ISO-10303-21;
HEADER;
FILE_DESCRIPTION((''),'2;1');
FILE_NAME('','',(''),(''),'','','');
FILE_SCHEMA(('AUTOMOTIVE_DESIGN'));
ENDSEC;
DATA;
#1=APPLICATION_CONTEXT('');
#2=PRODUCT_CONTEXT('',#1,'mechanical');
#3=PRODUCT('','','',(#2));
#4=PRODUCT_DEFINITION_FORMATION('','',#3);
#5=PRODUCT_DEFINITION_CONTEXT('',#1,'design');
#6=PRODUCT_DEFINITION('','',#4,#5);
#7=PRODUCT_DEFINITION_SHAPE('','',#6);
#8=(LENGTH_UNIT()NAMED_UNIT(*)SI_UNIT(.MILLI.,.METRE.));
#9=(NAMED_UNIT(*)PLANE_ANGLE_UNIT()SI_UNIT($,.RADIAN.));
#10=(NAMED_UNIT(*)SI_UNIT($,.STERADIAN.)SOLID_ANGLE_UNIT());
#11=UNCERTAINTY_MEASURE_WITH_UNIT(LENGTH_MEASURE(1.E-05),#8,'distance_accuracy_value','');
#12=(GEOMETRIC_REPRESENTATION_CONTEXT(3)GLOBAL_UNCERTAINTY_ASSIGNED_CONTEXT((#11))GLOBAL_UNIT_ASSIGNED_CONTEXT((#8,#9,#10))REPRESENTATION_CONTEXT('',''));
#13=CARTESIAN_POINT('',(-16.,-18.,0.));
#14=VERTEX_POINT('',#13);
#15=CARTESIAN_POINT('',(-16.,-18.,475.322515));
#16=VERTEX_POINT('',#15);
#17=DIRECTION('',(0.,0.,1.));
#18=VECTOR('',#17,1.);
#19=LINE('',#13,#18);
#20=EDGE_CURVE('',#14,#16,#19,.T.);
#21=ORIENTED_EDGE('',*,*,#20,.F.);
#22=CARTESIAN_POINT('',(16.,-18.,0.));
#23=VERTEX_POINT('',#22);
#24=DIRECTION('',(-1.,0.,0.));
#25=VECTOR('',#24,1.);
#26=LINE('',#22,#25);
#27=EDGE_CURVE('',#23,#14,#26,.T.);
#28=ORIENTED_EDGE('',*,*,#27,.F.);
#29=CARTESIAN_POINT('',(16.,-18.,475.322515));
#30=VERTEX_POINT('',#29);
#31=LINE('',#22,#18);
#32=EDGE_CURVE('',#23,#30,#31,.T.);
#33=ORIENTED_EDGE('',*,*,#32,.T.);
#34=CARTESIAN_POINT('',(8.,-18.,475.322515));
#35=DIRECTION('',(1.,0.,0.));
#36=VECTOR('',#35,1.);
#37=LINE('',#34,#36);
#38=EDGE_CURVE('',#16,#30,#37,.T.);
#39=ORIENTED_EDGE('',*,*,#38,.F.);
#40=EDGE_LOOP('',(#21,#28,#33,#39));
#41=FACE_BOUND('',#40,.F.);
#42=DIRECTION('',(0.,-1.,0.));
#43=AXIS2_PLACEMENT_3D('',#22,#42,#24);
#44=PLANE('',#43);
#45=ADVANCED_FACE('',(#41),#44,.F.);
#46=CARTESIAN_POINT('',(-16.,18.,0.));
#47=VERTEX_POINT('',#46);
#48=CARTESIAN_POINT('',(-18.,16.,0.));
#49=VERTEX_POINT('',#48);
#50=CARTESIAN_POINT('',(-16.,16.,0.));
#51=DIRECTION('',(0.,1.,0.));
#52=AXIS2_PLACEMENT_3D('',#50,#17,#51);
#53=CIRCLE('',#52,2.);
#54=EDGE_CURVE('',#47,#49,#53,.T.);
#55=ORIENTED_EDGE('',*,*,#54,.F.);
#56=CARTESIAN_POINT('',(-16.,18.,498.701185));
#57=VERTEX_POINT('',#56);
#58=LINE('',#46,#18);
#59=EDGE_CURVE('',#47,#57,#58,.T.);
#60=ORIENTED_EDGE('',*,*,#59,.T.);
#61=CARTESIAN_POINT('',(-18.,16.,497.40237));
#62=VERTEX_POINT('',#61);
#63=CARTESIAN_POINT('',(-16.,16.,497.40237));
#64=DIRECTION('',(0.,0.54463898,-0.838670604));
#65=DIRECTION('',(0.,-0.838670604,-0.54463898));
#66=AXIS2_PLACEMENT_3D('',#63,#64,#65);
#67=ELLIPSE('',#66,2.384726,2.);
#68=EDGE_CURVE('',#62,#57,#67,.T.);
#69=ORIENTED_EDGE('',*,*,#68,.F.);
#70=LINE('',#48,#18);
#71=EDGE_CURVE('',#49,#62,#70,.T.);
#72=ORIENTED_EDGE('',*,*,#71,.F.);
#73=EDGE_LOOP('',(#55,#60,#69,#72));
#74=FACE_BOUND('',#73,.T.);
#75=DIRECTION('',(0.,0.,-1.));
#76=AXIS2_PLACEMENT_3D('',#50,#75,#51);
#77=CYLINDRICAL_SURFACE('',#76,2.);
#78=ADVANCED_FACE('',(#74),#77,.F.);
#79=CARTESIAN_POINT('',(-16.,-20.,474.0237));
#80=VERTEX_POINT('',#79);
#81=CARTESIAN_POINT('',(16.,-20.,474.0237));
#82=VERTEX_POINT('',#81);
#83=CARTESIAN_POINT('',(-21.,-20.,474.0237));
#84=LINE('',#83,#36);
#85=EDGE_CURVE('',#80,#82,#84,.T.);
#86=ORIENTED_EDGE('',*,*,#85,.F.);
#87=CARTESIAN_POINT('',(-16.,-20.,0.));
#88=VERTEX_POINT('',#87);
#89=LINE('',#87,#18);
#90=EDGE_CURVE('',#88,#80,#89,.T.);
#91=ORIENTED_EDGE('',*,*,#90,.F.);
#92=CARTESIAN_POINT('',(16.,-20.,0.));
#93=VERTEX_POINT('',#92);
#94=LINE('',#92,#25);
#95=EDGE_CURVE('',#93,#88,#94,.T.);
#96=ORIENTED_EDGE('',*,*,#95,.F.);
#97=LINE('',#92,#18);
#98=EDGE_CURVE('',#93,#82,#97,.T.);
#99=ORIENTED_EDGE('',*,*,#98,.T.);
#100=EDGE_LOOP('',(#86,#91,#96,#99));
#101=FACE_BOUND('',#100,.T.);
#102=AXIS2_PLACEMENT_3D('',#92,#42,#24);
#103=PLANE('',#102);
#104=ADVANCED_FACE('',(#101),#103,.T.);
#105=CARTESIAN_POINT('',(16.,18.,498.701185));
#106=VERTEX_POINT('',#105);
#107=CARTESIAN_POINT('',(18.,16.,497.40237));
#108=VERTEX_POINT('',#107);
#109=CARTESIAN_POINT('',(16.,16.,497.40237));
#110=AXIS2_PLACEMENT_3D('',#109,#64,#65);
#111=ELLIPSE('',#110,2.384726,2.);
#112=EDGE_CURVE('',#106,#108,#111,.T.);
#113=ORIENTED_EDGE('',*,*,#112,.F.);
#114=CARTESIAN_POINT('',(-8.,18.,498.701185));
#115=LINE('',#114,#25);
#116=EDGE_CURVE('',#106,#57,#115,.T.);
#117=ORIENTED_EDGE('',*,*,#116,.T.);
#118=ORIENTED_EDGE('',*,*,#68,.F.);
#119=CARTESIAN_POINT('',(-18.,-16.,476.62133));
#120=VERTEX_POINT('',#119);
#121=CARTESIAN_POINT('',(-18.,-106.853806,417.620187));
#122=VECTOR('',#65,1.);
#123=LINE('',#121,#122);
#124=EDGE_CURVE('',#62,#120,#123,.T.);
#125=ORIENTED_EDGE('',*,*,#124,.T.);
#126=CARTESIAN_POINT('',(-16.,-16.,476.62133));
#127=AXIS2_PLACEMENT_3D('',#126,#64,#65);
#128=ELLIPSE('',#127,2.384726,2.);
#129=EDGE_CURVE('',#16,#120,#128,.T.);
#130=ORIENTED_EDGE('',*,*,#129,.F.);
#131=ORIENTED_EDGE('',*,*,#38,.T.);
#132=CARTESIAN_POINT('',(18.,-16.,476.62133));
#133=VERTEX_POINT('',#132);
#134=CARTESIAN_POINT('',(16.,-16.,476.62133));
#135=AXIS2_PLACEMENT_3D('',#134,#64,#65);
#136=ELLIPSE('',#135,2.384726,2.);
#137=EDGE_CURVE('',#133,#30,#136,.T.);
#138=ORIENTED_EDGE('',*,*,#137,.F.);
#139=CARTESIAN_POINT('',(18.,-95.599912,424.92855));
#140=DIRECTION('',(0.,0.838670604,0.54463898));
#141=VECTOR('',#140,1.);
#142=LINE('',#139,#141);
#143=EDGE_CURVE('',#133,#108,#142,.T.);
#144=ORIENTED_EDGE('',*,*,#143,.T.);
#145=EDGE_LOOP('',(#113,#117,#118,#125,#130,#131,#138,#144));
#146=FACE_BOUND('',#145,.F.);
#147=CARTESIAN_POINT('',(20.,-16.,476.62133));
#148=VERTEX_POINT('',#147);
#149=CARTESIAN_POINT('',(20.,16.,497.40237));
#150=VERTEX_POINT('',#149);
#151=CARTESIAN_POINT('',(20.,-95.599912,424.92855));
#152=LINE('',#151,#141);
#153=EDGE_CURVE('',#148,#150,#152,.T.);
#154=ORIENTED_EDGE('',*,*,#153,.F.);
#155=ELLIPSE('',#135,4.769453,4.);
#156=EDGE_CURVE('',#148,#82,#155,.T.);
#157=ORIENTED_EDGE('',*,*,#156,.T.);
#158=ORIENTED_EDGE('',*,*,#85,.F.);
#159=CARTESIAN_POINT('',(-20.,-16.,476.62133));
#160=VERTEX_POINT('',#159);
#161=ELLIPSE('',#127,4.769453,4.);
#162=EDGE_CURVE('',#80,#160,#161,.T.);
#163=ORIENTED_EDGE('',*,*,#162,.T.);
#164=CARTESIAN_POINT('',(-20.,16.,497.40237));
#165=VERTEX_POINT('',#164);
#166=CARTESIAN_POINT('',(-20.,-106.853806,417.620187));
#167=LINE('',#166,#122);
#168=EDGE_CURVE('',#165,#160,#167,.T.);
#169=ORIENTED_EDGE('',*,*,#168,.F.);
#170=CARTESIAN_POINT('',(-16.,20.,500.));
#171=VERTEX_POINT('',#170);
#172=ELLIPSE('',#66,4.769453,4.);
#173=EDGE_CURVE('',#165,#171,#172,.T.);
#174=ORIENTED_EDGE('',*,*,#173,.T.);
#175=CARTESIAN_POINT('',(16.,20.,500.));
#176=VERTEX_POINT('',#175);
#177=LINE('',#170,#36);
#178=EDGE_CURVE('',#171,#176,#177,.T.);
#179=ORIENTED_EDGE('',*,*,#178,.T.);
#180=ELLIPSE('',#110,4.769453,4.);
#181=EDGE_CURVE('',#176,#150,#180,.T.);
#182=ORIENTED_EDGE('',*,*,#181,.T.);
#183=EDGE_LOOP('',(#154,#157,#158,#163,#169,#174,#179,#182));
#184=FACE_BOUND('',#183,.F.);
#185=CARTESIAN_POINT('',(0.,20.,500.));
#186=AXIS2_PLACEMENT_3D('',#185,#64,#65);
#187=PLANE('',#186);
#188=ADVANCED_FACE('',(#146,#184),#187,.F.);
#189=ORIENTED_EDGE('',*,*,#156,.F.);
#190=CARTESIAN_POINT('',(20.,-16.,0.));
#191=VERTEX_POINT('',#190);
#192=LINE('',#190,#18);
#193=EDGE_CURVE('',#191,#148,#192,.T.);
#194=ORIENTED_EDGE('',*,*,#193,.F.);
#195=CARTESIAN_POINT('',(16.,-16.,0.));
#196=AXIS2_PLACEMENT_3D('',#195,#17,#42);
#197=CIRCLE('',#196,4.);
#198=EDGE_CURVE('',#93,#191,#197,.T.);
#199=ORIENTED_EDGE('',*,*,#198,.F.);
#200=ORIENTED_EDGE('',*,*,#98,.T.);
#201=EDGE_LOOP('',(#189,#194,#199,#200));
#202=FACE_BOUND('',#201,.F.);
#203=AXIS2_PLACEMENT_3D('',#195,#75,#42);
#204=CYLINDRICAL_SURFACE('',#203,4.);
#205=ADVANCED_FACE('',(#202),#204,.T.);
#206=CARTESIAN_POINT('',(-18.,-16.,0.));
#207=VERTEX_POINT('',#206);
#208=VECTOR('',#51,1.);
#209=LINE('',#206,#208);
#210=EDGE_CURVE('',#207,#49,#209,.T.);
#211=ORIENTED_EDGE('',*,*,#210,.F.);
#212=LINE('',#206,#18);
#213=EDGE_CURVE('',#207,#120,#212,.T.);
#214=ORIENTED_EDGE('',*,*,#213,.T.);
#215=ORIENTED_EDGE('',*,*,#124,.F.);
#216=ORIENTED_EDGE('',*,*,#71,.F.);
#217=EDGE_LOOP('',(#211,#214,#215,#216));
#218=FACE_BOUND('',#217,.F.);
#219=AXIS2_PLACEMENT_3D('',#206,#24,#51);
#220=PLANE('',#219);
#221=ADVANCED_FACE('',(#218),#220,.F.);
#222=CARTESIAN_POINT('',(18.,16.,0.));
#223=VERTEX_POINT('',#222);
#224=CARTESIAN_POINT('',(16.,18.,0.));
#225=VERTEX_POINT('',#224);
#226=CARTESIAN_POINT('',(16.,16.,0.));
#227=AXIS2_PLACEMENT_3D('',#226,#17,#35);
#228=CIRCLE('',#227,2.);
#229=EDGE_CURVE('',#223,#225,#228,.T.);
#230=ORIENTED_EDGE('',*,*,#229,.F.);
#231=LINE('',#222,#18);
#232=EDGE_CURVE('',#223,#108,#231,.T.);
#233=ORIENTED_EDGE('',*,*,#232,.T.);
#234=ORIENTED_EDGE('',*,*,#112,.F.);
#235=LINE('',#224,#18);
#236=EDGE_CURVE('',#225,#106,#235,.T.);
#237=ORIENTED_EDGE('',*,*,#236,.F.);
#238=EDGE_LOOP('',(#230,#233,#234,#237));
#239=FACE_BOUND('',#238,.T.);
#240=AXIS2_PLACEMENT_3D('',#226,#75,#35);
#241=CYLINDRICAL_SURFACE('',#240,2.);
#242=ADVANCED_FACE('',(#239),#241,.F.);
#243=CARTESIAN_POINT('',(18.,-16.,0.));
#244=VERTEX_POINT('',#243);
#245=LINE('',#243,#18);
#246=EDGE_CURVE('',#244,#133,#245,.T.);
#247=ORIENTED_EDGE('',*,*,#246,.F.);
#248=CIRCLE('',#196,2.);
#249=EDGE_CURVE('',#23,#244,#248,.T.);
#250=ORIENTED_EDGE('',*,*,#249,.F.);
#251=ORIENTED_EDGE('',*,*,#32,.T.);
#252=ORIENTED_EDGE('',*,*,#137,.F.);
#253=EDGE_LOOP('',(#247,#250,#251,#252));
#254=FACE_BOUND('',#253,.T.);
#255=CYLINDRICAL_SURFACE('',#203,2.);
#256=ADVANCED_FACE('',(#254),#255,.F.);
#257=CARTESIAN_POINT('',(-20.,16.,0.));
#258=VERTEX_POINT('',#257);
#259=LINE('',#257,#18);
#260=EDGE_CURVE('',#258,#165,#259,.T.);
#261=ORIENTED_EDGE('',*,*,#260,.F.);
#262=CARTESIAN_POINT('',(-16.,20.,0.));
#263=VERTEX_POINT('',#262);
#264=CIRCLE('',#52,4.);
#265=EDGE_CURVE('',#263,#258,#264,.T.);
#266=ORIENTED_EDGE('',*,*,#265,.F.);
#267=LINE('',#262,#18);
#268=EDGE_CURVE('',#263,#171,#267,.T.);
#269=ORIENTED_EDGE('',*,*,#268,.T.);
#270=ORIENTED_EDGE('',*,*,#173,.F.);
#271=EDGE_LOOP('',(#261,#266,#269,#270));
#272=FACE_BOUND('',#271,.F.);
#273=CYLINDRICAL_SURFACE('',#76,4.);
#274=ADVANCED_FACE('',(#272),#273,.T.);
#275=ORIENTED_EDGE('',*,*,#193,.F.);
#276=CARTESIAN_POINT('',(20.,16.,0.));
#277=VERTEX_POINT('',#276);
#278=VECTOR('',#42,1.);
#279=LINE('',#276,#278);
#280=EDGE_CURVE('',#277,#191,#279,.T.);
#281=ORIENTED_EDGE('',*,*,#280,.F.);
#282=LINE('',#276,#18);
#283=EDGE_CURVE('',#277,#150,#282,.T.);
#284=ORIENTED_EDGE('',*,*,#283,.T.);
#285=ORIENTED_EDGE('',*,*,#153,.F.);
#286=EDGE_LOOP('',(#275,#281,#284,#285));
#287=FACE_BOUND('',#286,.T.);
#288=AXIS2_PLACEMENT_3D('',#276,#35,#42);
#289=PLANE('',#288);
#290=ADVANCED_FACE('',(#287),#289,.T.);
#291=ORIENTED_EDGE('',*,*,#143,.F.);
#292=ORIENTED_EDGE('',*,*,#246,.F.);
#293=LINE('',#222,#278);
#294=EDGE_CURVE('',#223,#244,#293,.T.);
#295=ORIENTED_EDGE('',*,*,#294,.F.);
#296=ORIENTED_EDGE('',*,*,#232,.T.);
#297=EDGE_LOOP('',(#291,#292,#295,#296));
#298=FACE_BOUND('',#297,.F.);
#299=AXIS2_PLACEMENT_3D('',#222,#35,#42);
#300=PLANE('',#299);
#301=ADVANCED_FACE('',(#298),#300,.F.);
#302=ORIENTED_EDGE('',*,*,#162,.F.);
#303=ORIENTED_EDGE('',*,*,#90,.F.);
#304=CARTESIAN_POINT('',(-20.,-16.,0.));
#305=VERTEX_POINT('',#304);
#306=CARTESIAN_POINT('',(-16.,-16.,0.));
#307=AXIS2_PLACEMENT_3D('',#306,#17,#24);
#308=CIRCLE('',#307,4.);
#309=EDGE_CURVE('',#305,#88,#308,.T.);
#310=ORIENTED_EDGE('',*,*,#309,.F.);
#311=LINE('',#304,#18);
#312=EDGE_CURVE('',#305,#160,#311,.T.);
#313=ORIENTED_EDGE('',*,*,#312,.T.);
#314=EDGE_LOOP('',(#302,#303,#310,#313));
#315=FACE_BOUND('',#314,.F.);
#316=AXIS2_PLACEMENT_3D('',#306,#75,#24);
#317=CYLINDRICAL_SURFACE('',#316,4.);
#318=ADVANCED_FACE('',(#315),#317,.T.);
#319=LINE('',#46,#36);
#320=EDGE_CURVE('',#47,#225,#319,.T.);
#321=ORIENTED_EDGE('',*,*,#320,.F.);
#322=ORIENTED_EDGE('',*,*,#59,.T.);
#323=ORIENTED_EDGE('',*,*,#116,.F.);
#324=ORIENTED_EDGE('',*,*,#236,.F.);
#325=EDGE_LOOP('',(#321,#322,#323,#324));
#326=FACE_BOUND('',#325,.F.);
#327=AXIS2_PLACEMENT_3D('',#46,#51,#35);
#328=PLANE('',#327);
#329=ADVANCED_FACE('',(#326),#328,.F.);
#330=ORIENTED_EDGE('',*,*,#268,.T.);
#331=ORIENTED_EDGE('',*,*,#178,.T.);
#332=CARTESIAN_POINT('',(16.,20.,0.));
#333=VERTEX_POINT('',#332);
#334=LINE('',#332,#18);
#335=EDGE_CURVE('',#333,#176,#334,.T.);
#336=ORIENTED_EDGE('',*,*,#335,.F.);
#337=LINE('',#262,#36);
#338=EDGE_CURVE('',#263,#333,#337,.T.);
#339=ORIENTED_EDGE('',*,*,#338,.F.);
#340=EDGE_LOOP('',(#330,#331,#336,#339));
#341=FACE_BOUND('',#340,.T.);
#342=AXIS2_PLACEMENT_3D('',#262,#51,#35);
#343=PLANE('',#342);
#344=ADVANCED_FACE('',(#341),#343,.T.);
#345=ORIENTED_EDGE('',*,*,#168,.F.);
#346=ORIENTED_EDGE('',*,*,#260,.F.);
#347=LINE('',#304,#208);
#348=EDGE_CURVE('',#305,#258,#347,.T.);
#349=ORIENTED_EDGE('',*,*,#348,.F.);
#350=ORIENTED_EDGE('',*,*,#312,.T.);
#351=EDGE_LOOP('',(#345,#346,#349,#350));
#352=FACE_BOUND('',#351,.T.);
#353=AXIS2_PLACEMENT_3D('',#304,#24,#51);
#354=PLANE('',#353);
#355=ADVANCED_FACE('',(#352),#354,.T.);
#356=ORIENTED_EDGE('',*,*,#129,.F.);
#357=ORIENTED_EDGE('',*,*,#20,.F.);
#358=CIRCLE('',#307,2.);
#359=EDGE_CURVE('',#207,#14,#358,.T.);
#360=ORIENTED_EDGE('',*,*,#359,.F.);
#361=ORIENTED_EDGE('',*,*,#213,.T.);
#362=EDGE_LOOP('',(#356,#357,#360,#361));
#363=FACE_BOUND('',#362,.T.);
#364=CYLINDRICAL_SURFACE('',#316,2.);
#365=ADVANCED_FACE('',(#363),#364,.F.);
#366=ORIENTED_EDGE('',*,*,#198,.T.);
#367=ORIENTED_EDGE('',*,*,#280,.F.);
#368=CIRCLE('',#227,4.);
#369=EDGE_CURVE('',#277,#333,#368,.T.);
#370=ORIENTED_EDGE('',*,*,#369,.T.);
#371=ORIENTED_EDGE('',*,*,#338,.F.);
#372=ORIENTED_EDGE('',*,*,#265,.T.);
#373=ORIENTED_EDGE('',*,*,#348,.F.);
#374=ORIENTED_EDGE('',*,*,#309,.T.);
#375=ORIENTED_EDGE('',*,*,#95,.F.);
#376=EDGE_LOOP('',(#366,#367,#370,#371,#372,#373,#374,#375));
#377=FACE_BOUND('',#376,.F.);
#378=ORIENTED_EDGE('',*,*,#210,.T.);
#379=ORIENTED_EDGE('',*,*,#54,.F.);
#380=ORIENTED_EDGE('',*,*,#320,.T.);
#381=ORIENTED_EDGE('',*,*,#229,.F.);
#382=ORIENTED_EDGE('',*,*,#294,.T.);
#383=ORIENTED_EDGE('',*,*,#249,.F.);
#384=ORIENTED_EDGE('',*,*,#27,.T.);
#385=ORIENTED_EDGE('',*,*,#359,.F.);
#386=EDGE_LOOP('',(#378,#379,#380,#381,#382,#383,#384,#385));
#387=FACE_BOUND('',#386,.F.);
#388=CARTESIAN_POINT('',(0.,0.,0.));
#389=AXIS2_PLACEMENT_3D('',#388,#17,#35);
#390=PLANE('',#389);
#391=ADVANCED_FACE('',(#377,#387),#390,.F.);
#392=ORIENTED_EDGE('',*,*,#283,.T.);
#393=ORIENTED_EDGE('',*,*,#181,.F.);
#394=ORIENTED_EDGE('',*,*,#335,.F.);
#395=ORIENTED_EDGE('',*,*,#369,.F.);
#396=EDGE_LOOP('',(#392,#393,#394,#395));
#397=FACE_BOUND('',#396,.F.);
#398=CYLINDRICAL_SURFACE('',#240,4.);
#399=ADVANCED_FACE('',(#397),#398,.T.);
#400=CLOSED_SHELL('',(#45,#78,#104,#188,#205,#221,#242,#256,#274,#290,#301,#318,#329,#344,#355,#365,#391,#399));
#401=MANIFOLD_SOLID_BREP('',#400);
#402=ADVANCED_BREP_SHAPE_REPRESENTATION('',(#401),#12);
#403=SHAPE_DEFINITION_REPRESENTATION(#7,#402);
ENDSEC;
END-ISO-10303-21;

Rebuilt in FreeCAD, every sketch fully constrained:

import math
import FreeCAD as App
import Part
import Sketcher

V = App.Vector
Q = App.Units.Quantity


def add_polygon(sketch, points):
    """Adds a closed chain of lines whose ends are joined by coincident constraints."""
    first, n = sketch.GeometryCount, len(points)
    for a, b in zip(points, points[1:] + points[:1]):
        sketch.addGeometry(Part.LineSegment(App.Vector(*a, 0), App.Vector(*b, 0)), False)
    for i in range(n):
        sketch.addConstraint(Sketcher.Constraint("Coincident", first + i, 2, first + (i + 1) % n, 1))

doc = App.newDocument("Part")
body = doc.addObject("PartDesign::Body", "Body")

sketch1 = doc.addObject("Sketcher::SketchObject", "Sketch")
body.addObject(sketch1)
sketch1.AttachmentSupport = (doc.XY_Plane, [""])
sketch1.MapMode = "FlatFace"
sketch1.addGeometry(Part.LineSegment(V(-20, 16, 0), V(-20, -16, 0)), False)
sketch1.addGeometry(Part.ArcOfCircle(Part.Circle(V(-16, -16, 0), V(0, 0, 1), 4), math.radians(180), math.radians(270)), False)
sketch1.addGeometry(Part.LineSegment(V(-16, -20, 0), V(16, -20, 0)), False)
sketch1.addGeometry(Part.ArcOfCircle(Part.Circle(V(16, -16, 0), V(0, 0, 1), 4), math.radians(-90), math.radians(0)), False)
sketch1.addGeometry(Part.LineSegment(V(20, -16, 0), V(20, 16, 0)), False)
sketch1.addGeometry(Part.ArcOfCircle(Part.Circle(V(16, 16, 0), V(0, 0, 1), 4), math.radians(0), math.radians(90)), False)
sketch1.addGeometry(Part.LineSegment(V(16, 20, 0), V(-16, 20, 0)), False)
sketch1.addGeometry(Part.ArcOfCircle(Part.Circle(V(-16, 16, 0), V(0, 0, 1), 4), math.radians(90), math.radians(180)), False)
sketch1.addGeometry(Part.ArcOfCircle(Part.Circle(V(-16, 16, 0), V(0, 0, 1), 2), math.radians(90), math.radians(180)), False)
sketch1.addGeometry(Part.LineSegment(V(-16, 18, 0), V(16, 18, 0)), False)
sketch1.addGeometry(Part.ArcOfCircle(Part.Circle(V(16, 16, 0), V(0, 0, 1), 2), math.radians(0), math.radians(90)), False)
sketch1.addGeometry(Part.LineSegment(V(18, 16, 0), V(18, -16, 0)), False)
sketch1.addGeometry(Part.ArcOfCircle(Part.Circle(V(16, -16, 0), V(0, 0, 1), 2), math.radians(-90), math.radians(0)), False)
sketch1.addGeometry(Part.LineSegment(V(16, -18, 0), V(-16, -18, 0)), False)
sketch1.addGeometry(Part.ArcOfCircle(Part.Circle(V(-16, -16, 0), V(0, 0, 1), 2), math.radians(180), math.radians(270)), False)
sketch1.addGeometry(Part.LineSegment(V(-18, -16, 0), V(-18, 16, 0)), False)
sketch1.addConstraint(Sketcher.Constraint("Tangent", 0, 2, 1, 1))
sketch1.addConstraint(Sketcher.Constraint("Tangent", 1, 2, 2, 1))
sketch1.addConstraint(Sketcher.Constraint("Tangent", 2, 2, 3, 1))
sketch1.addConstraint(Sketcher.Constraint("Tangent", 3, 2, 4, 1))
sketch1.addConstraint(Sketcher.Constraint("Tangent", 4, 2, 5, 1))
sketch1.addConstraint(Sketcher.Constraint("Tangent", 5, 2, 6, 1))
sketch1.addConstraint(Sketcher.Constraint("Tangent", 6, 2, 7, 1))
sketch1.addConstraint(Sketcher.Constraint("Tangent", 7, 2, 0, 1))
sketch1.addConstraint(Sketcher.Constraint("Tangent", 8, 1, 9, 1))
sketch1.addConstraint(Sketcher.Constraint("Tangent", 9, 2, 10, 2))
sketch1.addConstraint(Sketcher.Constraint("Tangent", 10, 1, 11, 1))
sketch1.addConstraint(Sketcher.Constraint("Tangent", 11, 2, 12, 2))
sketch1.addConstraint(Sketcher.Constraint("Tangent", 12, 1, 13, 1))
sketch1.addConstraint(Sketcher.Constraint("Tangent", 13, 2, 14, 2))
sketch1.addConstraint(Sketcher.Constraint("Tangent", 14, 1, 15, 1))
sketch1.addConstraint(Sketcher.Constraint("Tangent", 15, 2, 8, 2))
sketch1.addConstraint(Sketcher.Constraint("Vertical", 0))
sketch1.addConstraint(Sketcher.Constraint("Horizontal", 2))
sketch1.addConstraint(Sketcher.Constraint("Vertical", 4))
sketch1.addConstraint(Sketcher.Constraint("Horizontal", 6))
sketch1.addConstraint(Sketcher.Constraint("Horizontal", 9))
sketch1.addConstraint(Sketcher.Constraint("Vertical", 11))
sketch1.addConstraint(Sketcher.Constraint("Horizontal", 13))
sketch1.addConstraint(Sketcher.Constraint("Vertical", 15))
sketch1.addConstraint(Sketcher.Constraint("Coincident", 8, 3, 7, 3))
sketch1.addConstraint(Sketcher.Constraint("Coincident", 10, 3, 5, 3))
sketch1.addConstraint(Sketcher.Constraint("Coincident", 12, 3, 3, 3))
sketch1.addConstraint(Sketcher.Constraint("Equal", 1, 3))
sketch1.addConstraint(Sketcher.Constraint("Equal", 3, 5))
sketch1.addConstraint(Sketcher.Constraint("Equal", 5, 7))
sketch1.addConstraint(Sketcher.Constraint("Equal", 12, 14))
sketch1.addConstraint(Sketcher.Constraint("Symmetric", 1, 3, 5, 3, -1, 1))
sketch1.addConstraint(Sketcher.Constraint("Equal", 13, 0))
sketch1.addConstraint(Sketcher.Constraint("Radius", 1, Q("4 mm")))
sketch1.addConstraint(Sketcher.Constraint("Radius", 8, Q("2 mm")))
sketch1.addConstraint(Sketcher.Constraint("DistanceX", 0, 2, -1, 1, Q("20 mm")))
pad1 = doc.addObject("PartDesign::Pad", "Pad")
body.addObject(pad1)
pad1.Profile = sketch1
pad1.Length = 500

sketch2 = doc.addObject("Sketcher::SketchObject", "Sketch001")
body.addObject(sketch2)
sketch2.AttachmentSupport = (doc.YZ_Plane, [""])
sketch2.MapMode = "FlatFace"
add_polygon(sketch2, [(-20, 500), (-20, 474), (20, 500)])
sketch2.addConstraint(Sketcher.Constraint("Vertical", 0))
sketch2.addConstraint(Sketcher.Constraint("Horizontal", 2))
sketch2.addConstraint(Sketcher.Constraint("Angle", 1, Q("33 deg")))
sketch2.addConstraint(Sketcher.Constraint("DistanceX", 2, 2, 2, 1, Q("40 mm")))
sketch2.addConstraint(Sketcher.Constraint("DistanceX", 0, 2, -1, 1, Q("20 mm")))
sketch2.addConstraint(Sketcher.Constraint("DistanceY", -1, 1, 1, 2, Q("500 mm")))
pocket1 = doc.addObject("PartDesign::Pocket", "Pocket")
body.addObject(pocket1)
pocket1.Profile = sketch2
pocket1.Type = "ThroughAll"
pocket1.Midplane = True

doc.recompute()
